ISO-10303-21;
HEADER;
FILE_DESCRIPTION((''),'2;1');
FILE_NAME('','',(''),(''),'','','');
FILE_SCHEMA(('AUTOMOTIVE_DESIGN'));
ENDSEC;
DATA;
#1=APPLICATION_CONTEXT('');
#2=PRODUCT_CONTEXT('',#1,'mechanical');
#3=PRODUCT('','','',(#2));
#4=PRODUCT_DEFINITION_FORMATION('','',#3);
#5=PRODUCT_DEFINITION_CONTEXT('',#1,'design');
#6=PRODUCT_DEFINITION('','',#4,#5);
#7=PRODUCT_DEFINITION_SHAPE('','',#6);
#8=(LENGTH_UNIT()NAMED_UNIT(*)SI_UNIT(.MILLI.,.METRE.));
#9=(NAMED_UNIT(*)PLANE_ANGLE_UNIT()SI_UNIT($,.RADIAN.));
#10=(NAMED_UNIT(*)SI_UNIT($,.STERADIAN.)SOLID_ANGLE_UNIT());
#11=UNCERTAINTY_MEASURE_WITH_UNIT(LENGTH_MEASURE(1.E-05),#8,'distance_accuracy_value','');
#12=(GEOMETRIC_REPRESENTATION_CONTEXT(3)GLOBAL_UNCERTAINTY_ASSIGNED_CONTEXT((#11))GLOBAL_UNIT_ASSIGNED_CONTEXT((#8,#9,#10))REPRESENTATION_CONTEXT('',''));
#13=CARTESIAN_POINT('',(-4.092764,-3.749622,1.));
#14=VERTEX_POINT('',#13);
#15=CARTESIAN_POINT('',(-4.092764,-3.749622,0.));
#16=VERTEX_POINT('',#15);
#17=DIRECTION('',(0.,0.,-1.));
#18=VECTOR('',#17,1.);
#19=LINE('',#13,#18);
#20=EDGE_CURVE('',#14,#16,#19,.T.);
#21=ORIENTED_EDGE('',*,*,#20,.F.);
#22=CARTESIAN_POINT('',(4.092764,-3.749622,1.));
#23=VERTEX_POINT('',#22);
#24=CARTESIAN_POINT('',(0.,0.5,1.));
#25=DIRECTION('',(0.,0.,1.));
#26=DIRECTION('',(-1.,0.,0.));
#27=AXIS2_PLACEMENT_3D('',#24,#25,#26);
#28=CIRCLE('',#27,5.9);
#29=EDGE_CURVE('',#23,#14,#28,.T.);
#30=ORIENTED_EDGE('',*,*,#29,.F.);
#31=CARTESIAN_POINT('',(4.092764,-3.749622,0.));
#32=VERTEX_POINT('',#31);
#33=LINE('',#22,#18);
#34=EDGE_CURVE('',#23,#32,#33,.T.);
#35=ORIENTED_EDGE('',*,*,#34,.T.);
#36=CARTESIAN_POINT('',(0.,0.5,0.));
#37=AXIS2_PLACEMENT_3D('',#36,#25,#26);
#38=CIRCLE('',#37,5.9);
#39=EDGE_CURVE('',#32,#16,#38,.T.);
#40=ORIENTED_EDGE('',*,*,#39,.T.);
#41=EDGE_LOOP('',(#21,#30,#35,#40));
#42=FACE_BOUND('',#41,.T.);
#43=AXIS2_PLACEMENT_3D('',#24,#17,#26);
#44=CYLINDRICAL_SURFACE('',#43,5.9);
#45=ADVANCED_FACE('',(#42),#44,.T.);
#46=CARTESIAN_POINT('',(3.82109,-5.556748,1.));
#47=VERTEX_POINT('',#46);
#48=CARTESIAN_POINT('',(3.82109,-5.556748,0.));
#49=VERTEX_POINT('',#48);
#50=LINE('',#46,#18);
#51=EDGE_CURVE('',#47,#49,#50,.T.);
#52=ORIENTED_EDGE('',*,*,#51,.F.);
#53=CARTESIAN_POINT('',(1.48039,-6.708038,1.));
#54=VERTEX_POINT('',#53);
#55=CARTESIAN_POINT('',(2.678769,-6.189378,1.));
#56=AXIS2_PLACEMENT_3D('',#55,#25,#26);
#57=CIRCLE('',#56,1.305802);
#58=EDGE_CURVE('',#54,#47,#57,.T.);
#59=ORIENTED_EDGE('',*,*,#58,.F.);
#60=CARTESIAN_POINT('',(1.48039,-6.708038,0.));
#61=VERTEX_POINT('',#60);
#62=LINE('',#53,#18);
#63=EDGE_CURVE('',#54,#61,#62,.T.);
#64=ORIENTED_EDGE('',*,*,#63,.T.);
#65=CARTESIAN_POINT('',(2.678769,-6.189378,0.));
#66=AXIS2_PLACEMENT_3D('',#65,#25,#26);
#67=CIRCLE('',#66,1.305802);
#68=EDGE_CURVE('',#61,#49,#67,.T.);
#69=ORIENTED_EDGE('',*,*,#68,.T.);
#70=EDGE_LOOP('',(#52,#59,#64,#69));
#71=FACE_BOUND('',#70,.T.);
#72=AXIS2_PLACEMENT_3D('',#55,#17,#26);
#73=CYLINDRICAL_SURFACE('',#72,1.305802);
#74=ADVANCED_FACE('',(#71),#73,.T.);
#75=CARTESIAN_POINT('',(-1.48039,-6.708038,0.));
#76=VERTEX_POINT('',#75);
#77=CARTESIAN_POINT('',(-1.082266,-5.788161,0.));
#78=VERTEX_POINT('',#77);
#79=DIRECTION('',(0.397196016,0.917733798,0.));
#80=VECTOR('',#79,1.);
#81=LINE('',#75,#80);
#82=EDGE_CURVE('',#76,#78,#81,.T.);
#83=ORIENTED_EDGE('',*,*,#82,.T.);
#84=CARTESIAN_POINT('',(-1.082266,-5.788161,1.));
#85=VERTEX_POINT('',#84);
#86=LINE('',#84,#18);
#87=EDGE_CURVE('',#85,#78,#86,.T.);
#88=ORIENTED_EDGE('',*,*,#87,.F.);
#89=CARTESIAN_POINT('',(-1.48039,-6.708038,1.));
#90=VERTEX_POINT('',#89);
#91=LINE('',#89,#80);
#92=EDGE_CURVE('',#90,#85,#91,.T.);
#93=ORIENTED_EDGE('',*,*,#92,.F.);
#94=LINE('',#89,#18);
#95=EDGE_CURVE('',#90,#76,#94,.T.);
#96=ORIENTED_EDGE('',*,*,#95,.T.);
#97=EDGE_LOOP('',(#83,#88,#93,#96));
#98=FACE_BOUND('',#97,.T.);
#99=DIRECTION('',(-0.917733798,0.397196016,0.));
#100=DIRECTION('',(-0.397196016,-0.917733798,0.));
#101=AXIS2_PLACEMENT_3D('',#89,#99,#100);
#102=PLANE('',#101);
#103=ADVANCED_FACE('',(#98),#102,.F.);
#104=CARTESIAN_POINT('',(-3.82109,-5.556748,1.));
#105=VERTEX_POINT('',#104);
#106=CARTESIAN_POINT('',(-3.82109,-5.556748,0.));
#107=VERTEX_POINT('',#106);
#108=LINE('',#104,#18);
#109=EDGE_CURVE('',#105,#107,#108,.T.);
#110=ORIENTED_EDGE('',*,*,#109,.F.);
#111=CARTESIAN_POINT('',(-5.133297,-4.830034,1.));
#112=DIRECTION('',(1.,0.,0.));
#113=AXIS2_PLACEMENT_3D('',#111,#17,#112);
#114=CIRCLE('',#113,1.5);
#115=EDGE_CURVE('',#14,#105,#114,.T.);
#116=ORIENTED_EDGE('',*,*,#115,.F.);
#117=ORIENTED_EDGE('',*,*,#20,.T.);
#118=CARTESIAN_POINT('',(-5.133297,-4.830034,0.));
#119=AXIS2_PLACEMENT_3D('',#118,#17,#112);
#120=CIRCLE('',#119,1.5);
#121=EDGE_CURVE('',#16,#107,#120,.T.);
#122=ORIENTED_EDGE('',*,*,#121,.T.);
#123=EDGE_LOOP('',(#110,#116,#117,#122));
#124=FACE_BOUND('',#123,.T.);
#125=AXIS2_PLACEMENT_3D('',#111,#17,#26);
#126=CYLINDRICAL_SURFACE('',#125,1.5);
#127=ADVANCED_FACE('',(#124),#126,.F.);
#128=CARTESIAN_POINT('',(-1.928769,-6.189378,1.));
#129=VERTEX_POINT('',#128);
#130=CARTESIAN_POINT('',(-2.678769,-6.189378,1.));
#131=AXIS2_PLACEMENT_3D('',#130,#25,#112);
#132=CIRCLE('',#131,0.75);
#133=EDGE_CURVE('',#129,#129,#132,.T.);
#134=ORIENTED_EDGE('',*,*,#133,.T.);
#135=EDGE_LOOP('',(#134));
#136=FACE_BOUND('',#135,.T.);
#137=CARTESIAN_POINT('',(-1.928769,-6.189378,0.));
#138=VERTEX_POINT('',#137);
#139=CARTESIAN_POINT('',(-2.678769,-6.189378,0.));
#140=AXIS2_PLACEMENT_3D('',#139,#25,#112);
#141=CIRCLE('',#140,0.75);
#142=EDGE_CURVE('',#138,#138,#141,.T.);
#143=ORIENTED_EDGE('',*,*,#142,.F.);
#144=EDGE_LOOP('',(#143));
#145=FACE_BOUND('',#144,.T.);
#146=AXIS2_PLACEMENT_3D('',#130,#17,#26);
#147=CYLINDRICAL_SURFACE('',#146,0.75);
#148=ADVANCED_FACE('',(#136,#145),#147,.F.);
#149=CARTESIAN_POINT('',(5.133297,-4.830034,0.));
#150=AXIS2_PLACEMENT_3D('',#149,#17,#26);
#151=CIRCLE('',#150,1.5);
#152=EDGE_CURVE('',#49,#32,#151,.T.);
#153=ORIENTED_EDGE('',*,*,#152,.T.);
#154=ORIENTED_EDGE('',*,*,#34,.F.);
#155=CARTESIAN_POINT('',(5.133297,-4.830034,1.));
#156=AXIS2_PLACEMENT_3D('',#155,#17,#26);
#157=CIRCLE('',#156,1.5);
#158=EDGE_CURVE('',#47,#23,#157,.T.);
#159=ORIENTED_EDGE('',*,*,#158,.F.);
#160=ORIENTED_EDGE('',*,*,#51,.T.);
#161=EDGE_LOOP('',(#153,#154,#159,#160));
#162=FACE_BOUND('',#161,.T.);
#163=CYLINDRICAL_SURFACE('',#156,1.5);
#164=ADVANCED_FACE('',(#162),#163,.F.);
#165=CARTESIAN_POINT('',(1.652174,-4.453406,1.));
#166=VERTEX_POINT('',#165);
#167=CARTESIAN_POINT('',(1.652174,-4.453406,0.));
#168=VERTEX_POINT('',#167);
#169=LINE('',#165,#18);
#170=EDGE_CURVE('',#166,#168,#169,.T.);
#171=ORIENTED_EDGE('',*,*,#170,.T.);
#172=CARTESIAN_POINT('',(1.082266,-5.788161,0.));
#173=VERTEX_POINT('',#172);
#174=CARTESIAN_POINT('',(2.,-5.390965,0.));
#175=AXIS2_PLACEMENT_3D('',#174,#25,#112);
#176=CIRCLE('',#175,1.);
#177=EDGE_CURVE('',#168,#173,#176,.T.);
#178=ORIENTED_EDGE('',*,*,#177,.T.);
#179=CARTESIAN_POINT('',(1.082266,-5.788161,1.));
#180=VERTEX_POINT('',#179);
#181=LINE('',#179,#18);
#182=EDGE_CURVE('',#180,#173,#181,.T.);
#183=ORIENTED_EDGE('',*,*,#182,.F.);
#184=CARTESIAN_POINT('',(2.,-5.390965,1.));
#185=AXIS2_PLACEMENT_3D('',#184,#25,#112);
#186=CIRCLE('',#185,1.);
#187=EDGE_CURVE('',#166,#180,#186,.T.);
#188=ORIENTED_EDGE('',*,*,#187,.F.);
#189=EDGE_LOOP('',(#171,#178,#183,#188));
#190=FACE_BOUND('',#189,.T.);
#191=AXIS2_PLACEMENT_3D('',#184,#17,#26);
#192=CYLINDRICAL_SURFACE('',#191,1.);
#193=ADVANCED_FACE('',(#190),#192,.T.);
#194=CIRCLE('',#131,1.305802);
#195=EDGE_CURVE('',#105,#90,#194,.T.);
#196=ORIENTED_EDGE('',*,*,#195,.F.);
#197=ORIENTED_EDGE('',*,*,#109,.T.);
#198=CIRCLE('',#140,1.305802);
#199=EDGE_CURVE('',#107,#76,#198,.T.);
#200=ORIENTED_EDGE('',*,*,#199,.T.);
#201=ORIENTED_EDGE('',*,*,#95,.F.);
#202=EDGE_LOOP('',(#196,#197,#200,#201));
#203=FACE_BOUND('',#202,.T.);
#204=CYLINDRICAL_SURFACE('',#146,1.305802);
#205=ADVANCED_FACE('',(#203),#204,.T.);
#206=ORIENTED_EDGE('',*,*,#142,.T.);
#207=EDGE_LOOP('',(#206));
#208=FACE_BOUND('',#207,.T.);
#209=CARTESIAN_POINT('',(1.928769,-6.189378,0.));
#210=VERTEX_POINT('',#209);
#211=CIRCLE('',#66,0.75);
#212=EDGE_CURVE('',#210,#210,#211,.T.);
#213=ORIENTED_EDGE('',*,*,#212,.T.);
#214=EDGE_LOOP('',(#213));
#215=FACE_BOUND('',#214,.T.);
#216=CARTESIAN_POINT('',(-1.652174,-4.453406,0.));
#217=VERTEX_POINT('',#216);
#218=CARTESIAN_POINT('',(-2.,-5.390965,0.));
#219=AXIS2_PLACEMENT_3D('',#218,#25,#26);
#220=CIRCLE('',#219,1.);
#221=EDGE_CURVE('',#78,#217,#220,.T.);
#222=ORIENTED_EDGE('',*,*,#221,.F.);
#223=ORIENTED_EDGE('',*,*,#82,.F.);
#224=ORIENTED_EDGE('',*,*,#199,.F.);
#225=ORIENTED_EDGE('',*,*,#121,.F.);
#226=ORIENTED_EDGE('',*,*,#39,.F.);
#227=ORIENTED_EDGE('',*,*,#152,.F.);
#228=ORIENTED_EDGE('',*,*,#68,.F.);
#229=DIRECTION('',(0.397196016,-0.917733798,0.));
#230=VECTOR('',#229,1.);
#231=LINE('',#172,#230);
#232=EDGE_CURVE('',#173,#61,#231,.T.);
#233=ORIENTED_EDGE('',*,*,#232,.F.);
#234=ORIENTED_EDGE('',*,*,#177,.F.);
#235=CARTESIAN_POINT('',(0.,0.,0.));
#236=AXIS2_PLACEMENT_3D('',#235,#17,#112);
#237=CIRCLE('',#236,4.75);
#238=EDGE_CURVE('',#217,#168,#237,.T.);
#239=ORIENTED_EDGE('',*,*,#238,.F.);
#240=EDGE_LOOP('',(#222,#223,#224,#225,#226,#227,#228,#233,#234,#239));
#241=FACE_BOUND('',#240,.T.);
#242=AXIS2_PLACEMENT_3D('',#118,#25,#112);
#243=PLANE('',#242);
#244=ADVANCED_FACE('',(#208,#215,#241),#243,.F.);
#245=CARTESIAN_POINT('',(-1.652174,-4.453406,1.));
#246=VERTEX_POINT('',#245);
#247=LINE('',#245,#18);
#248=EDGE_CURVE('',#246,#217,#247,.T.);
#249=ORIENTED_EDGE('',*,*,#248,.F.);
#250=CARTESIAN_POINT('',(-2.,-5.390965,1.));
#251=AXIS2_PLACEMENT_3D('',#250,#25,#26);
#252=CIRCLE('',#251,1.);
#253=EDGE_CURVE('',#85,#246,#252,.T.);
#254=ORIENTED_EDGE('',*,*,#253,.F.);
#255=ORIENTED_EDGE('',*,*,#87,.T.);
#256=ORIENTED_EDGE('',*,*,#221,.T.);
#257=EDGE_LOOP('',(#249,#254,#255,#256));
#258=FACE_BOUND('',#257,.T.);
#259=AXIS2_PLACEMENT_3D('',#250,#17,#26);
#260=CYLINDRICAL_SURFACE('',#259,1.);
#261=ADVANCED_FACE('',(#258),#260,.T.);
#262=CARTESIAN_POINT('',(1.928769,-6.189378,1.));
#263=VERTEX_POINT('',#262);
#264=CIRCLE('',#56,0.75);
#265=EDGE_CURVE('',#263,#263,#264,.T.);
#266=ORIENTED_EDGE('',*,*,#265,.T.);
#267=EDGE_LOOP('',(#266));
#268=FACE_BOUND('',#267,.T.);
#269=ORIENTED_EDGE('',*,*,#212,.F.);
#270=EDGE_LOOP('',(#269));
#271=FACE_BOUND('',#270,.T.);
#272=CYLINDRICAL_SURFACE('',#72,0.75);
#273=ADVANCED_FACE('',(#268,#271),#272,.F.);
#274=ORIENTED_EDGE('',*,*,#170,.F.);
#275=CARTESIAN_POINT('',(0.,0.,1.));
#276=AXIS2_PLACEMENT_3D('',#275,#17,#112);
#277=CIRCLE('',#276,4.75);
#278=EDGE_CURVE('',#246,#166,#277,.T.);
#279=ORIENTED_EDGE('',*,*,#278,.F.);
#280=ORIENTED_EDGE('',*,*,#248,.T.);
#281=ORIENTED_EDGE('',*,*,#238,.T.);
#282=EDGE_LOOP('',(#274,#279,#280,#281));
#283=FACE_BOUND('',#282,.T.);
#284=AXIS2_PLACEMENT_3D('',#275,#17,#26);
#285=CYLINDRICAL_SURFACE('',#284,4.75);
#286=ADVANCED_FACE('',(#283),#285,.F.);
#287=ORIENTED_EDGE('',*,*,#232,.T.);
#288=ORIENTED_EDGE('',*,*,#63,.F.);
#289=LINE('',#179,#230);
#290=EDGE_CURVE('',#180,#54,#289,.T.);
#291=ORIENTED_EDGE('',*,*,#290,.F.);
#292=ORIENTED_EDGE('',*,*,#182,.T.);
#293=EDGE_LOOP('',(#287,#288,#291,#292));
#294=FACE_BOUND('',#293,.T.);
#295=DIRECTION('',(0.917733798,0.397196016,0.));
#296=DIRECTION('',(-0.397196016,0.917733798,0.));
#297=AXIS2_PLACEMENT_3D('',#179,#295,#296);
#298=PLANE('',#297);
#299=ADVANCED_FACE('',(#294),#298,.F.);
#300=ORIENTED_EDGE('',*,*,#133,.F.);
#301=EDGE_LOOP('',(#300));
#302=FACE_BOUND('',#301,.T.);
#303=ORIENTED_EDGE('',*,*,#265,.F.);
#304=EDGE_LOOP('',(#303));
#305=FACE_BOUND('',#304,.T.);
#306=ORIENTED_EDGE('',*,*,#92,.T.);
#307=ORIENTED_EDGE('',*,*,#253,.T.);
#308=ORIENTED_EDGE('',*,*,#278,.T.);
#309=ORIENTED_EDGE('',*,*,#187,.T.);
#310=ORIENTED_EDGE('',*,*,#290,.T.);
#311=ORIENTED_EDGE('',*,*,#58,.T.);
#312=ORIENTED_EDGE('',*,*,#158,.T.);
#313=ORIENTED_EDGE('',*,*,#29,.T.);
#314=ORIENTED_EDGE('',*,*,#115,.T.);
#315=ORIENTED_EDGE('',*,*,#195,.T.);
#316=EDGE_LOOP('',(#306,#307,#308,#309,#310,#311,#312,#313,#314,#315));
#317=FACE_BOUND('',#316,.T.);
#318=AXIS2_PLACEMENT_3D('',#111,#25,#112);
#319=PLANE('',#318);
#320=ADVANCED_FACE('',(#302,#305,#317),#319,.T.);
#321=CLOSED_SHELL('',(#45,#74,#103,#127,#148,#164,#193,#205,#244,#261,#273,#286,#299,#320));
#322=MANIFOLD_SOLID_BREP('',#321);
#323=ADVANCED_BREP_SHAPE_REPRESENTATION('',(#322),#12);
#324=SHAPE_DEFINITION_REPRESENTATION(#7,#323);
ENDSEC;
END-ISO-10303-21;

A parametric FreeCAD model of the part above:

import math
import FreeCAD as App
import Part
import Sketcher
Q = App.Units.Quantity

doc = App.newDocument("Part")
body = doc.addObject("PartDesign::Body", "Body")

# Sketch on XY plane
sketch1 = body.newObject("Sketcher::SketchObject", "Sketch")
sketch1.AttachmentSupport = (doc.getObject("XY_Plane"), [""])
sketch1.MapMode = "FlatFace"
sketch1.addGeometry([
    Part.LineSegment(App.Vector(1.1, -5.8, 0), App.Vector(1.5, -6.7, 0)),  # 0
    Part.ArcOfCircle(Part.Circle(App.Vector(2.7, -6.2, 0), App.Vector(0, 0, 1), 1.3), math.radians(-157), math.radians(29)),  # 1
    Part.ArcOfCircle(Part.Circle(App.Vector(5.1, -4.8, 0), App.Vector(0, 0, 1), 1.5), math.radians(134), math.radians(209)),  # 2
    Part.ArcOfCircle(Part.Circle(App.Vector(0, 0.5, 0), App.Vector(0, 0, 1), 5.9), math.radians(-46), math.radians(226)),  # 3
    Part.ArcOfCircle(Part.Circle(App.Vector(-5.1, -4.8, 0), App.Vector(0, 0, 1), 1.5), math.radians(-29), math.radians(46)),  # 4
    Part.ArcOfCircle(Part.Circle(App.Vector(-2.7, -6.2, 0), App.Vector(0, 0, 1), 1.3), math.radians(151), math.radians(337)),  # 5
    Part.LineSegment(App.Vector(-1.5, -6.7, 0), App.Vector(-1.1, -5.8, 0)),  # 6
    Part.ArcOfCircle(Part.Circle(App.Vector(-2, -5.4, 0), App.Vector(0, 0, 1), 1), math.radians(-23), math.radians(70)),  # 7
    Part.ArcOfCircle(Part.Circle(App.Vector(0, 0, 0), App.Vector(0, 0, 1), 4.8), math.radians(-70), math.radians(250)),  # 8
    Part.ArcOfCircle(Part.Circle(App.Vector(2, -5.4, 0), App.Vector(0, 0, 1), 1), math.radians(110), math.radians(203)),  # 9
    Part.Circle(App.Vector(-2.7, -6.2, 0), App.Vector(0, 0, 1), 0.8),  # 10
    Part.Circle(App.Vector(2.7, -6.2, 0), App.Vector(0, 0, 1), 0.8),  # 11
], False)
sketch1.addConstraint([
    Sketcher.Constraint("Tangent", 0, 2, 1, 1),
    Sketcher.Constraint("Tangent", 1, 2, 2, 2),
    Sketcher.Constraint("Tangent", 2, 1, 3, 1),
    Sketcher.Constraint("Tangent", 3, 2, 4, 2),
    Sketcher.Constraint("Tangent", 4, 1, 5, 1),
    Sketcher.Constraint("Tangent", 5, 2, 6, 1),
    Sketcher.Constraint("Tangent", 6, 2, 7, 1),
    Sketcher.Constraint("Tangent", 7, 2, 8, 2),
    Sketcher.Constraint("Tangent", 8, 1, 9, 1),
    Sketcher.Constraint("Tangent", 9, 2, 0, 1),
    Sketcher.Constraint("Coincident", 8, 3, -1, 1),
    Sketcher.Constraint("Coincident", 10, 3, 5, 3),
    Sketcher.Constraint("Coincident", 11, 3, 1, 3),
    Sketcher.Constraint("Equal", 2, 4),
    Sketcher.Constraint("Equal", 1, 5),
    Sketcher.Constraint("Equal", 7, 9),
    Sketcher.Constraint("Equal", 10, 11),
    Sketcher.Constraint("Symmetric", 2, 3, 4, 3, -2),
    Sketcher.Constraint("Symmetric", 0, 2, 5, 2, -2),
    Sketcher.Constraint("Radius", 7, Q("1 mm")),
    Sketcher.Constraint("Diameter", 10, Q("1.5 mm")),
    Sketcher.Constraint("Radius", 2, Q("1.5 mm")),
    Sketcher.Constraint("Radius", 3, Q("5.9 mm")),
    Sketcher.Constraint("Radius", 8, Q("4.75 mm")),
    Sketcher.Constraint("DistanceX", 7, 3, -1, 1, Q("2 mm")),
    Sketcher.Constraint("DistanceY", -1, 1, 3, 3, Q("0.5 mm")),
    Sketcher.Constraint("Radius", 1, Q("1.305802 mm")),
    Sketcher.Constraint("DistanceX", 0, 2, 1, 2, Q("2.3407 mm")),
    Sketcher.Constraint("DistanceX", -1, 1, 1, 3, Q("2.678769 mm")),
])
pad1 = body.newObject("PartDesign::Pad", "Pad")
pad1.Profile = sketch1
pad1.Length = 1

doc.recompute()
